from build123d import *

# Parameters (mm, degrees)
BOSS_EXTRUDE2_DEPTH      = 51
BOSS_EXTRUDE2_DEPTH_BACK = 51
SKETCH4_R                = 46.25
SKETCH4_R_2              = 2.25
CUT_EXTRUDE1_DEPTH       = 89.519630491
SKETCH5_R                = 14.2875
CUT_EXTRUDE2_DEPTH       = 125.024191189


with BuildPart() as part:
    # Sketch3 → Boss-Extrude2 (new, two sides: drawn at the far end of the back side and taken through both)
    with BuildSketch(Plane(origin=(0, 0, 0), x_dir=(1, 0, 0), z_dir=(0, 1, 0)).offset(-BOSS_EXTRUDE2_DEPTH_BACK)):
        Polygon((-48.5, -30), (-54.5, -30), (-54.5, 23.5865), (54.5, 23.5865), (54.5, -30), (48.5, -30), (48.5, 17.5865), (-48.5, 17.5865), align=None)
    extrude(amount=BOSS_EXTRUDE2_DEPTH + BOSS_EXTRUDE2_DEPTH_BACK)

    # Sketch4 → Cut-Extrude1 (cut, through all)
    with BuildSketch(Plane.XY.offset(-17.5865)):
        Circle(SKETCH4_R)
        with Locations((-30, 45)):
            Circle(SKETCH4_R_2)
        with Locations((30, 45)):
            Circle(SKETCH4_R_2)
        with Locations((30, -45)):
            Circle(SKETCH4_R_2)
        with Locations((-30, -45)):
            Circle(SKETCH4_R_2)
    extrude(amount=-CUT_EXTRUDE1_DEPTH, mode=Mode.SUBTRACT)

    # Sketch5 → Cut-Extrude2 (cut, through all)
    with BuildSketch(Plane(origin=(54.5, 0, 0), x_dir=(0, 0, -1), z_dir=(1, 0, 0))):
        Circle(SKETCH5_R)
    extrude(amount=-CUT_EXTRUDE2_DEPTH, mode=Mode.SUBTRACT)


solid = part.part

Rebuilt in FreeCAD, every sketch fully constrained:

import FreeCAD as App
import Part
import Sketcher
Q = App.Units.Quantity

doc = App.newDocument("Part")
body = doc.addObject("PartDesign::Body", "Body")

sketch1 = body.newObject("Sketcher::SketchObject", "Sketch")
sketch1.AttachmentSupport = (doc.getObject("XZ_Plane"), [""])
sketch1.MapMode = "FlatFace"
sketch1.addGeometry([
    Part.LineSegment(App.Vector(-54, 30, 0), App.Vector(-48, 30, 0)),
    Part.LineSegment(App.Vector(-48, 30, 0), App.Vector(-48, -18, 0)),
    Part.LineSegment(App.Vector(-48, -18, 0), App.Vector(48, -18, 0)),
    Part.LineSegment(App.Vector(48, -18, 0), App.Vector(48, 30, 0)),
    Part.LineSegment(App.Vector(48, 30, 0), App.Vector(54, 30, 0)),
    Part.LineSegment(App.Vector(54, 30, 0), App.Vector(54, -24, 0)),
    Part.LineSegment(App.Vector(54, -24, 0), App.Vector(-54, -24, 0)),
    Part.LineSegment(App.Vector(-54, -24, 0), App.Vector(-54, 30, 0)),
], False)
sketch1.addConstraint([
    Sketcher.Constraint("Coincident", 0, 2, 1, 1),
    Sketcher.Constraint("Coincident", 1, 2, 2, 1),
    Sketcher.Constraint("Coincident", 2, 2, 3, 1),
    Sketcher.Constraint("Coincident", 3, 2, 4, 1),
    Sketcher.Constraint("Coincident", 4, 2, 5, 1),
    Sketcher.Constraint("Coincident", 5, 2, 6, 1),
    Sketcher.Constraint("Coincident", 6, 2, 7, 1),
    Sketcher.Constraint("Coincident", 7, 2, 0, 1),
    Sketcher.Constraint("Horizontal", 0),
    Sketcher.Constraint("Vertical", 1),
    Sketcher.Constraint("Horizontal", 2),
    Sketcher.Constraint("Vertical", 3),
    Sketcher.Constraint("Horizontal", 4),
    Sketcher.Constraint("Vertical", 5),
    Sketcher.Constraint("Horizontal", 6),
    Sketcher.Constraint("Vertical", 7),
    Sketcher.Constraint("Symmetric", 0, 2, 3, 2, -2),
    Sketcher.Constraint("Equal", 0, 4),
    Sketcher.Constraint("DistanceX", 0, 1, 0, 2, Q("6 mm")),
    Sketcher.Constraint("DistanceX", 2, 1, 2, 2, Q("97 mm")),
    Sketcher.Constraint("DistanceY", -1, 1, 0, 2, Q("30 mm")),
    Sketcher.Constraint("DistanceY", 5, 2, 2, 2, Q("6 mm")),
    Sketcher.Constraint("DistanceY", 1, 2, 1, 1, Q("47.5865 mm")),
])
pad1 = body.newObject("PartDesign::Pad", "Pad")
pad1.Profile = sketch1
pad1.Type = "TwoLengths"
pad1.Length = 51
pad1.Length2 = 51
pad1.Reversed = True

sketch2 = body.newObject("Sketcher::SketchObject", "Sketch001")
sketch2.AttachmentSupport = (doc.getObject("XY_Plane"), [""])
sketch2.MapMode = "FlatFace"
sketch2.AttachmentOffset = App.Placement(App.Vector(0, 0, -17.5865), App.Rotation())
sketch2.addGeometry([
    Part.Circle(App.Vector(0, 0, 0), App.Vector(0, 0, 1), 46.2),
    Part.Circle(App.Vector(-30, 45, 0), App.Vector(0, 0, 1), 2.2),
    Part.Circle(App.Vector(30, 45, 0), App.Vector(0, 0, 1), 2.2),
    Part.Circle(App.Vector(30, -45, 0), App.Vector(0, 0, 1), 2.2),
    Part.Circle(App.Vector(-30, -45, 0), App.Vector(0, 0, 1), 2.2),
], False)
sketch2.addConstraint([
    Sketcher.Constraint("Coincident", 0, 3, -1, 1),
    Sketcher.Constraint("Equal", 1, 2),
    Sketcher.Constraint("Equal", 2, 3),
    Sketcher.Constraint("Equal", 3, 4),
    Sketcher.Constraint("Symmetric", 1, 3, 3, 3, -1, 1),
    Sketcher.Constraint("Symmetric", 2, 3, 4, 3, -1, 1),
    Sketcher.Constraint("Symmetric", 1, 3, 2, 3, -2),
    Sketcher.Constraint("Diameter", 0, Q("92.5 mm")),
    Sketcher.Constraint("Diameter", 1, Q("4.5 mm")),
    Sketcher.Constraint("DistanceX", 1, 3, -1, 1, Q("30 mm")),
    Sketcher.Constraint("DistanceY", -1, 1, 1, 3, Q("45 mm")),
])
pocket1 = body.newObject("PartDesign::Pocket", "Pocket")
pocket1.Profile = sketch2
pocket1.Type = "ThroughAll"

sketch3 = body.newObject("Sketcher::SketchObject", "Sketch002")
sketch3.AttachmentSupport = (doc.getObject("YZ_Plane"), [""])
sketch3.MapMode = "FlatFace"
sketch3.AttachmentOffset = App.Placement(App.Vector(0, 0, 54.5), App.Rotation())
sketch3.addGeometry(Part.Circle(App.Vector(0, 0, 0), App.Vector(0, 0, 1), 14), False)
sketch3.addConstraint([
    Sketcher.Constraint("Coincident", 0, 3, -1, 1),
    Sketcher.Constraint("Diameter", 0, Q("28.575 mm")),
])
pocket2 = body.newObject("PartDesign::Pocket", "Pocket001")
pocket2.Profile = sketch3
pocket2.Type = "ThroughAll"

doc.recompute()
